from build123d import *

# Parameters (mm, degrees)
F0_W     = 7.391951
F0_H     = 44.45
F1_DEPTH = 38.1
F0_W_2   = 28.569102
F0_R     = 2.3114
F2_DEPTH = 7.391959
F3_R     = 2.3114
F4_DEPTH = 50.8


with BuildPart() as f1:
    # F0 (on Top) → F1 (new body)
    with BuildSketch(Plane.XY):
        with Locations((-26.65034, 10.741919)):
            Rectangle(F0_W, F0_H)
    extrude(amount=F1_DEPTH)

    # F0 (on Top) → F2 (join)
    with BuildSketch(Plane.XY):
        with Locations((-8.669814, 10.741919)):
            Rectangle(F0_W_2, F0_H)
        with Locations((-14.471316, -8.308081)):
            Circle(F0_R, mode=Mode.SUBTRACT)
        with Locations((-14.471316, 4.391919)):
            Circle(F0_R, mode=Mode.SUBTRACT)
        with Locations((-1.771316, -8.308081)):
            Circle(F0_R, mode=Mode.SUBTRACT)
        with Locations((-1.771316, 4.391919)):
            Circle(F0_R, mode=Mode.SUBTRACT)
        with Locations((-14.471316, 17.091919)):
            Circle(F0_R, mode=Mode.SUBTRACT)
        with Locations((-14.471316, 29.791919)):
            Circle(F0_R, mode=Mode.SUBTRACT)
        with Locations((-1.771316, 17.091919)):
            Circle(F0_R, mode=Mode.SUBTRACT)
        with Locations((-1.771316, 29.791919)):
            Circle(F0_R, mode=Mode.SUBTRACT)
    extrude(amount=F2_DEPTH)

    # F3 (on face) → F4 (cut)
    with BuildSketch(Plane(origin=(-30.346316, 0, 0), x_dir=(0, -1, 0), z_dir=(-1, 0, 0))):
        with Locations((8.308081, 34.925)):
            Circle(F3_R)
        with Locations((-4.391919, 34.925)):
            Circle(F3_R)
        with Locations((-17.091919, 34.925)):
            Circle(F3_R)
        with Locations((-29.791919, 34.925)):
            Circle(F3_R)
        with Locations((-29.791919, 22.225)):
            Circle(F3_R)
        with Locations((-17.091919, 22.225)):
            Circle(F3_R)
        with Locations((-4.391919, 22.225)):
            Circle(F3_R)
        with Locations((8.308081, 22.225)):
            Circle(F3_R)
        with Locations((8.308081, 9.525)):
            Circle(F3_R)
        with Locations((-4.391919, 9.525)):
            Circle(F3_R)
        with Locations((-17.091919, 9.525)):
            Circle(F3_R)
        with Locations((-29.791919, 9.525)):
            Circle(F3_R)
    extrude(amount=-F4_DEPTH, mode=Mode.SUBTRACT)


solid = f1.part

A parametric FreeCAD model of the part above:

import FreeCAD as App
import Part
import Sketcher
from FreeCAD import Vector
Q = App.Units.Quantity


def add_polygon(sketch, points):
    """Adds a closed chain of lines whose ends are joined by coincident constraints."""
    first, n = sketch.GeometryCount, len(points)
    for a, b in zip(points, points[1:] + points[:1]):
        sketch.addGeometry(Part.LineSegment(App.Vector(*a, 0), App.Vector(*b, 0)), False)
    for i in range(n):
        sketch.addConstraint(Sketcher.Constraint("Coincident", first + i, 2, first + (i + 1) % n, 1))

doc = App.newDocument("Part")
body = doc.addObject("PartDesign::Body", "Body")

# Sketch on XY plane
sketch1 = body.newObject("Sketcher::SketchObject", "Sketch")
sketch1.AttachmentSupport = (doc.getObject("XY_Plane"), [""])
sketch1.MapMode = "FlatFace"
add_polygon(sketch1, [(-30.346315, 32.966919), (-30.346315, -11.483081), (-22.954365, -11.483081), (-22.954365, 32.966919)])  # lines 0-3
sketch1.addConstraint([
    Sketcher.Constraint("Vertical", 0),
    Sketcher.Constraint("Horizontal", 1),
    Sketcher.Constraint("Vertical", 2),
    Sketcher.Constraint("Horizontal", 3),
    Sketcher.Constraint("DistanceY", 0, 2, 0, 1, Q("1.75 in")),
    Sketcher.Constraint("DistanceX", 1, 1, 1, 2, Q("7.391951 mm")),
    Sketcher.Constraint("DistanceY", 0, 2, -1, 1, Q("11.483081 mm")),
    Sketcher.Constraint("DistanceX", 0, 2, -1, 1, Q("30.346315 mm")),
])
pad1 = body.newObject("PartDesign::Pad", "Pad")
pad1.Profile = sketch1
pad1.Length = Q("1.5 in")

# Sketch on XY plane
sketch2 = body.newObject("Sketcher::SketchObject", "Sketch001")
sketch2.AttachmentSupport = (doc.getObject("XY_Plane"), [""])
sketch2.MapMode = "FlatFace"
add_polygon(sketch2, [(-22.954365, 32.966919), (-22.954365, -11.483081), (5.614737, -11.483081), (5.614737, 32.966919)])  # lines 0-3
sketch2.addGeometry(Part.Circle(Vector(-14.471316, -8.308081, 0), Vector(0, 0, 1), 2.3114), False)  # 4
sketch2.addGeometry(Part.Circle(Vector(-14.471316, 4.391919, 0), Vector(0, 0, 1), 2.3114), False)  # 5
sketch2.addGeometry(Part.Circle(Vector(-1.771316, -8.308081, 0), Vector(0, 0, 1), 2.3114), False)  # 6
sketch2.addGeometry(Part.Circle(Vector(-1.771316, 4.391919, 0), Vector(0, 0, 1), 2.3114), False)  # 7
sketch2.addGeometry(Part.Circle(Vector(-14.471316, 17.091919, 0), Vector(0, 0, 1), 2.3114), False)  # 8
sketch2.addGeometry(Part.Circle(Vector(-14.471316, 29.791919, 0), Vector(0, 0, 1), 2.3114), False)  # 9
sketch2.addGeometry(Part.Circle(Vector(-1.771316, 17.091919, 0), Vector(0, 0, 1), 2.3114), False)  # 10
sketch2.addGeometry(Part.Circle(Vector(-1.771316, 29.791919, 0), Vector(0, 0, 1), 2.3114), False)  # 11
sketch2.addConstraint([
    Sketcher.Constraint("Vertical", 0),
    Sketcher.Constraint("Horizontal", 1),
    Sketcher.Constraint("Vertical", 2),
    Sketcher.Constraint("Horizontal", 3),
    Sketcher.Constraint("Equal", 4, 5),
    Sketcher.Constraint("Equal", 5, 6),
    Sketcher.Constraint("Equal", 6, 7),
    Sketcher.Constraint("Equal", 7, 8),
    Sketcher.Constraint("Equal", 8, 9),
    Sketcher.Constraint("Equal", 9, 10),
    Sketcher.Constraint("Equal", 10, 11),
    Sketcher.Constraint("Horizontal", 4, 3, 6, 3),
    Sketcher.Constraint("Horizontal", 5, 3, 7, 3),
    Sketcher.Constraint("Horizontal", 8, 3, 10, 3),
    Sketcher.Constraint("Horizontal", 9, 3, 11, 3),
    Sketcher.Constraint("Vertical", 4, 3, 5, 3),
    Sketcher.Constraint("Vertical", 6, 3, 7, 3),
    Sketcher.Constraint("Vertical", 5, 3, 8, 3),
    Sketcher.Constraint("Vertical", 8, 3, 9, 3),
    Sketcher.Constraint("Vertical", 7, 3, 10, 3),
    Sketcher.Constraint("Vertical", 10, 3, 11, 3),
    Sketcher.Constraint("Diameter", 4, Q("0.182 in")),
    Sketcher.Constraint("DistanceY", 4, 3, 8, 3, Q("1 in")),
    Sketcher.Constraint("DistanceY", 5, 3, 9, 3, Q("1 in")),
    Sketcher.Constraint("DistanceY", 0, 2, 0, 1, Q("1.75 in")),
    Sketcher.Constraint("DistanceY", 4, 3, 5, 3, Q("0.5 in")),
    Sketcher.Constraint("DistanceX", 4, 3, 6, 3, Q("0.5 in")),
    Sketcher.Constraint("DistanceY", 0, 2, 4, 3, Q("0.125 in")),
    Sketcher.Constraint("DistanceX", 1, 1, 1, 2, Q("28.569102 mm")),
    Sketcher.Constraint("DistanceY", 4, 3, -1, 1, Q("8.308081 mm")),
    Sketcher.Constraint("DistanceX", 0, 2, 4, 3, Q("8.483049 mm")),
    Sketcher.Constraint("DistanceX", 4, 3, -1, 1, Q("14.471316 mm")),
])
pad2 = body.newObject("PartDesign::Pad", "Pad001")
pad2.Profile = sketch2
pad2.Length = 7.391959

# Sketch on YZ plane
sketch3 = body.newObject("Sketcher::SketchObject", "Sketch002")
sketch3.AttachmentSupport = (doc.getObject("YZ_Plane"), [""])
sketch3.MapMode = "FlatFace"
sketch3.AttachmentOffset = App.Placement(Vector(0, 0, -30.346316), App.Rotation())
sketch3.addGeometry([
    Part.Circle(Vector(-8.308081, 34.925, 0), Vector(0, 0, 1), 2.3114),  # 0
    Part.Circle(Vector(4.391919, 34.925, 0), Vector(0, 0, 1), 2.3114),  # 1
    Part.Circle(Vector(17.091919, 34.925, 0), Vector(0, 0, 1), 2.3114),  # 2
    Part.Circle(Vector(29.791919, 34.925, 0), Vector(0, 0, 1), 2.3114),  # 3
    Part.Circle(Vector(29.791919, 22.225, 0), Vector(0, 0, 1), 2.3114),  # 4
    Part.Circle(Vector(17.091919, 22.225, 0), Vector(0, 0, 1), 2.3114),  # 5
    Part.Circle(Vector(4.391919, 22.225, 0), Vector(0, 0, 1), 2.3114),  # 6
    Part.Circle(Vector(-8.308081, 22.225, 0), Vector(0, 0, 1), 2.3114),  # 7
    Part.Circle(Vector(-8.308081, 9.525, 0), Vector(0, 0, 1), 2.3114),  # 8
    Part.Circle(Vector(4.391919, 9.525, 0), Vector(0, 0, 1), 2.3114),  # 9
    Part.Circle(Vector(17.091919, 9.525, 0), Vector(0, 0, 1), 2.3114),  # 10
    Part.Circle(Vector(29.791919, 9.525, 0), Vector(0, 0, 1), 2.3114),  # 11
], False)
sketch3.addConstraint([
    Sketcher.Constraint("Equal", 0, 1),
    Sketcher.Constraint("Equal", 1, 2),
    Sketcher.Constraint("Equal", 2, 3),
    Sketcher.Constraint("Equal", 3, 4),
    Sketcher.Constraint("Equal", 4, 5),
    Sketcher.Constraint("Equal", 5, 6),
    Sketcher.Constraint("Equal", 6, 7),
    Sketcher.Constraint("Equal", 7, 8),
    Sketcher.Constraint("Equal", 8, 9),
    Sketcher.Constraint("Equal", 9, 10),
    Sketcher.Constraint("Equal", 10, 11),
    Sketcher.Constraint("Horizontal", 0, 3, 1, 3),
    Sketcher.Constraint("Horizontal", 1, 3, 2, 3),
    Sketcher.Constraint("Horizontal", 2, 3, 3, 3),
    Sketcher.Constraint("Horizontal", 4, 3, 5, 3),
    Sketcher.Constraint("Horizontal", 5, 3, 6, 3),
    Sketcher.Constraint("Horizontal", 6, 3, 7, 3),
    Sketcher.Constraint("Horizontal", 8, 3, 9, 3),
    Sketcher.Constraint("Horizontal", 9, 3, 10, 3),
    Sketcher.Constraint("Horizontal", 10, 3, 11, 3),
    Sketcher.Constraint("Vertical", 3, 3, 4, 3),
    Sketcher.Constraint("Vertical", 2, 3, 5, 3),
    Sketcher.Constraint("Vertical", 1, 3, 6, 3),
    Sketcher.Constraint("Vertical", 0, 3, 7, 3),
    Sketcher.Constraint("Vertical", 7, 3, 8, 3),
    Sketcher.Constraint("Vertical", 6, 3, 9, 3),
    Sketcher.Constraint("Vertical", 5, 3, 10, 3),
    Sketcher.Constraint("Vertical", 4, 3, 11, 3),
    Sketcher.Constraint("Diameter", 0, Q("0.182 in")),
    Sketcher.Constraint("DistanceX", 0, 3, 2, 3, Q("1 in")),
    Sketcher.Constraint("DistanceX", 1, 3, 3, 3, Q("1 in")),
    Sketcher.Constraint("DistanceY", 8, 3, 0, 3, Q("1 in")),
    Sketcher.Constraint("DistanceX", 0, 3, 1, 3, Q("0.5 in")),
    Sketcher.Constraint("DistanceY", 4, 3, 3, 3, Q("0.5 in")),
    Sketcher.Constraint("DistanceY", -1, 1, 0, 3, Q("1.375 in")),
    Sketcher.Constraint("DistanceX", 0, 3, -1, 1, Q("8.308081 mm")),
])
pocket1 = body.newObject("PartDesign::Pocket", "Pocket")
pocket1.Profile = sketch3
pocket1.Length = Q("2 in")
pocket1.Reversed = True

doc.recompute()
